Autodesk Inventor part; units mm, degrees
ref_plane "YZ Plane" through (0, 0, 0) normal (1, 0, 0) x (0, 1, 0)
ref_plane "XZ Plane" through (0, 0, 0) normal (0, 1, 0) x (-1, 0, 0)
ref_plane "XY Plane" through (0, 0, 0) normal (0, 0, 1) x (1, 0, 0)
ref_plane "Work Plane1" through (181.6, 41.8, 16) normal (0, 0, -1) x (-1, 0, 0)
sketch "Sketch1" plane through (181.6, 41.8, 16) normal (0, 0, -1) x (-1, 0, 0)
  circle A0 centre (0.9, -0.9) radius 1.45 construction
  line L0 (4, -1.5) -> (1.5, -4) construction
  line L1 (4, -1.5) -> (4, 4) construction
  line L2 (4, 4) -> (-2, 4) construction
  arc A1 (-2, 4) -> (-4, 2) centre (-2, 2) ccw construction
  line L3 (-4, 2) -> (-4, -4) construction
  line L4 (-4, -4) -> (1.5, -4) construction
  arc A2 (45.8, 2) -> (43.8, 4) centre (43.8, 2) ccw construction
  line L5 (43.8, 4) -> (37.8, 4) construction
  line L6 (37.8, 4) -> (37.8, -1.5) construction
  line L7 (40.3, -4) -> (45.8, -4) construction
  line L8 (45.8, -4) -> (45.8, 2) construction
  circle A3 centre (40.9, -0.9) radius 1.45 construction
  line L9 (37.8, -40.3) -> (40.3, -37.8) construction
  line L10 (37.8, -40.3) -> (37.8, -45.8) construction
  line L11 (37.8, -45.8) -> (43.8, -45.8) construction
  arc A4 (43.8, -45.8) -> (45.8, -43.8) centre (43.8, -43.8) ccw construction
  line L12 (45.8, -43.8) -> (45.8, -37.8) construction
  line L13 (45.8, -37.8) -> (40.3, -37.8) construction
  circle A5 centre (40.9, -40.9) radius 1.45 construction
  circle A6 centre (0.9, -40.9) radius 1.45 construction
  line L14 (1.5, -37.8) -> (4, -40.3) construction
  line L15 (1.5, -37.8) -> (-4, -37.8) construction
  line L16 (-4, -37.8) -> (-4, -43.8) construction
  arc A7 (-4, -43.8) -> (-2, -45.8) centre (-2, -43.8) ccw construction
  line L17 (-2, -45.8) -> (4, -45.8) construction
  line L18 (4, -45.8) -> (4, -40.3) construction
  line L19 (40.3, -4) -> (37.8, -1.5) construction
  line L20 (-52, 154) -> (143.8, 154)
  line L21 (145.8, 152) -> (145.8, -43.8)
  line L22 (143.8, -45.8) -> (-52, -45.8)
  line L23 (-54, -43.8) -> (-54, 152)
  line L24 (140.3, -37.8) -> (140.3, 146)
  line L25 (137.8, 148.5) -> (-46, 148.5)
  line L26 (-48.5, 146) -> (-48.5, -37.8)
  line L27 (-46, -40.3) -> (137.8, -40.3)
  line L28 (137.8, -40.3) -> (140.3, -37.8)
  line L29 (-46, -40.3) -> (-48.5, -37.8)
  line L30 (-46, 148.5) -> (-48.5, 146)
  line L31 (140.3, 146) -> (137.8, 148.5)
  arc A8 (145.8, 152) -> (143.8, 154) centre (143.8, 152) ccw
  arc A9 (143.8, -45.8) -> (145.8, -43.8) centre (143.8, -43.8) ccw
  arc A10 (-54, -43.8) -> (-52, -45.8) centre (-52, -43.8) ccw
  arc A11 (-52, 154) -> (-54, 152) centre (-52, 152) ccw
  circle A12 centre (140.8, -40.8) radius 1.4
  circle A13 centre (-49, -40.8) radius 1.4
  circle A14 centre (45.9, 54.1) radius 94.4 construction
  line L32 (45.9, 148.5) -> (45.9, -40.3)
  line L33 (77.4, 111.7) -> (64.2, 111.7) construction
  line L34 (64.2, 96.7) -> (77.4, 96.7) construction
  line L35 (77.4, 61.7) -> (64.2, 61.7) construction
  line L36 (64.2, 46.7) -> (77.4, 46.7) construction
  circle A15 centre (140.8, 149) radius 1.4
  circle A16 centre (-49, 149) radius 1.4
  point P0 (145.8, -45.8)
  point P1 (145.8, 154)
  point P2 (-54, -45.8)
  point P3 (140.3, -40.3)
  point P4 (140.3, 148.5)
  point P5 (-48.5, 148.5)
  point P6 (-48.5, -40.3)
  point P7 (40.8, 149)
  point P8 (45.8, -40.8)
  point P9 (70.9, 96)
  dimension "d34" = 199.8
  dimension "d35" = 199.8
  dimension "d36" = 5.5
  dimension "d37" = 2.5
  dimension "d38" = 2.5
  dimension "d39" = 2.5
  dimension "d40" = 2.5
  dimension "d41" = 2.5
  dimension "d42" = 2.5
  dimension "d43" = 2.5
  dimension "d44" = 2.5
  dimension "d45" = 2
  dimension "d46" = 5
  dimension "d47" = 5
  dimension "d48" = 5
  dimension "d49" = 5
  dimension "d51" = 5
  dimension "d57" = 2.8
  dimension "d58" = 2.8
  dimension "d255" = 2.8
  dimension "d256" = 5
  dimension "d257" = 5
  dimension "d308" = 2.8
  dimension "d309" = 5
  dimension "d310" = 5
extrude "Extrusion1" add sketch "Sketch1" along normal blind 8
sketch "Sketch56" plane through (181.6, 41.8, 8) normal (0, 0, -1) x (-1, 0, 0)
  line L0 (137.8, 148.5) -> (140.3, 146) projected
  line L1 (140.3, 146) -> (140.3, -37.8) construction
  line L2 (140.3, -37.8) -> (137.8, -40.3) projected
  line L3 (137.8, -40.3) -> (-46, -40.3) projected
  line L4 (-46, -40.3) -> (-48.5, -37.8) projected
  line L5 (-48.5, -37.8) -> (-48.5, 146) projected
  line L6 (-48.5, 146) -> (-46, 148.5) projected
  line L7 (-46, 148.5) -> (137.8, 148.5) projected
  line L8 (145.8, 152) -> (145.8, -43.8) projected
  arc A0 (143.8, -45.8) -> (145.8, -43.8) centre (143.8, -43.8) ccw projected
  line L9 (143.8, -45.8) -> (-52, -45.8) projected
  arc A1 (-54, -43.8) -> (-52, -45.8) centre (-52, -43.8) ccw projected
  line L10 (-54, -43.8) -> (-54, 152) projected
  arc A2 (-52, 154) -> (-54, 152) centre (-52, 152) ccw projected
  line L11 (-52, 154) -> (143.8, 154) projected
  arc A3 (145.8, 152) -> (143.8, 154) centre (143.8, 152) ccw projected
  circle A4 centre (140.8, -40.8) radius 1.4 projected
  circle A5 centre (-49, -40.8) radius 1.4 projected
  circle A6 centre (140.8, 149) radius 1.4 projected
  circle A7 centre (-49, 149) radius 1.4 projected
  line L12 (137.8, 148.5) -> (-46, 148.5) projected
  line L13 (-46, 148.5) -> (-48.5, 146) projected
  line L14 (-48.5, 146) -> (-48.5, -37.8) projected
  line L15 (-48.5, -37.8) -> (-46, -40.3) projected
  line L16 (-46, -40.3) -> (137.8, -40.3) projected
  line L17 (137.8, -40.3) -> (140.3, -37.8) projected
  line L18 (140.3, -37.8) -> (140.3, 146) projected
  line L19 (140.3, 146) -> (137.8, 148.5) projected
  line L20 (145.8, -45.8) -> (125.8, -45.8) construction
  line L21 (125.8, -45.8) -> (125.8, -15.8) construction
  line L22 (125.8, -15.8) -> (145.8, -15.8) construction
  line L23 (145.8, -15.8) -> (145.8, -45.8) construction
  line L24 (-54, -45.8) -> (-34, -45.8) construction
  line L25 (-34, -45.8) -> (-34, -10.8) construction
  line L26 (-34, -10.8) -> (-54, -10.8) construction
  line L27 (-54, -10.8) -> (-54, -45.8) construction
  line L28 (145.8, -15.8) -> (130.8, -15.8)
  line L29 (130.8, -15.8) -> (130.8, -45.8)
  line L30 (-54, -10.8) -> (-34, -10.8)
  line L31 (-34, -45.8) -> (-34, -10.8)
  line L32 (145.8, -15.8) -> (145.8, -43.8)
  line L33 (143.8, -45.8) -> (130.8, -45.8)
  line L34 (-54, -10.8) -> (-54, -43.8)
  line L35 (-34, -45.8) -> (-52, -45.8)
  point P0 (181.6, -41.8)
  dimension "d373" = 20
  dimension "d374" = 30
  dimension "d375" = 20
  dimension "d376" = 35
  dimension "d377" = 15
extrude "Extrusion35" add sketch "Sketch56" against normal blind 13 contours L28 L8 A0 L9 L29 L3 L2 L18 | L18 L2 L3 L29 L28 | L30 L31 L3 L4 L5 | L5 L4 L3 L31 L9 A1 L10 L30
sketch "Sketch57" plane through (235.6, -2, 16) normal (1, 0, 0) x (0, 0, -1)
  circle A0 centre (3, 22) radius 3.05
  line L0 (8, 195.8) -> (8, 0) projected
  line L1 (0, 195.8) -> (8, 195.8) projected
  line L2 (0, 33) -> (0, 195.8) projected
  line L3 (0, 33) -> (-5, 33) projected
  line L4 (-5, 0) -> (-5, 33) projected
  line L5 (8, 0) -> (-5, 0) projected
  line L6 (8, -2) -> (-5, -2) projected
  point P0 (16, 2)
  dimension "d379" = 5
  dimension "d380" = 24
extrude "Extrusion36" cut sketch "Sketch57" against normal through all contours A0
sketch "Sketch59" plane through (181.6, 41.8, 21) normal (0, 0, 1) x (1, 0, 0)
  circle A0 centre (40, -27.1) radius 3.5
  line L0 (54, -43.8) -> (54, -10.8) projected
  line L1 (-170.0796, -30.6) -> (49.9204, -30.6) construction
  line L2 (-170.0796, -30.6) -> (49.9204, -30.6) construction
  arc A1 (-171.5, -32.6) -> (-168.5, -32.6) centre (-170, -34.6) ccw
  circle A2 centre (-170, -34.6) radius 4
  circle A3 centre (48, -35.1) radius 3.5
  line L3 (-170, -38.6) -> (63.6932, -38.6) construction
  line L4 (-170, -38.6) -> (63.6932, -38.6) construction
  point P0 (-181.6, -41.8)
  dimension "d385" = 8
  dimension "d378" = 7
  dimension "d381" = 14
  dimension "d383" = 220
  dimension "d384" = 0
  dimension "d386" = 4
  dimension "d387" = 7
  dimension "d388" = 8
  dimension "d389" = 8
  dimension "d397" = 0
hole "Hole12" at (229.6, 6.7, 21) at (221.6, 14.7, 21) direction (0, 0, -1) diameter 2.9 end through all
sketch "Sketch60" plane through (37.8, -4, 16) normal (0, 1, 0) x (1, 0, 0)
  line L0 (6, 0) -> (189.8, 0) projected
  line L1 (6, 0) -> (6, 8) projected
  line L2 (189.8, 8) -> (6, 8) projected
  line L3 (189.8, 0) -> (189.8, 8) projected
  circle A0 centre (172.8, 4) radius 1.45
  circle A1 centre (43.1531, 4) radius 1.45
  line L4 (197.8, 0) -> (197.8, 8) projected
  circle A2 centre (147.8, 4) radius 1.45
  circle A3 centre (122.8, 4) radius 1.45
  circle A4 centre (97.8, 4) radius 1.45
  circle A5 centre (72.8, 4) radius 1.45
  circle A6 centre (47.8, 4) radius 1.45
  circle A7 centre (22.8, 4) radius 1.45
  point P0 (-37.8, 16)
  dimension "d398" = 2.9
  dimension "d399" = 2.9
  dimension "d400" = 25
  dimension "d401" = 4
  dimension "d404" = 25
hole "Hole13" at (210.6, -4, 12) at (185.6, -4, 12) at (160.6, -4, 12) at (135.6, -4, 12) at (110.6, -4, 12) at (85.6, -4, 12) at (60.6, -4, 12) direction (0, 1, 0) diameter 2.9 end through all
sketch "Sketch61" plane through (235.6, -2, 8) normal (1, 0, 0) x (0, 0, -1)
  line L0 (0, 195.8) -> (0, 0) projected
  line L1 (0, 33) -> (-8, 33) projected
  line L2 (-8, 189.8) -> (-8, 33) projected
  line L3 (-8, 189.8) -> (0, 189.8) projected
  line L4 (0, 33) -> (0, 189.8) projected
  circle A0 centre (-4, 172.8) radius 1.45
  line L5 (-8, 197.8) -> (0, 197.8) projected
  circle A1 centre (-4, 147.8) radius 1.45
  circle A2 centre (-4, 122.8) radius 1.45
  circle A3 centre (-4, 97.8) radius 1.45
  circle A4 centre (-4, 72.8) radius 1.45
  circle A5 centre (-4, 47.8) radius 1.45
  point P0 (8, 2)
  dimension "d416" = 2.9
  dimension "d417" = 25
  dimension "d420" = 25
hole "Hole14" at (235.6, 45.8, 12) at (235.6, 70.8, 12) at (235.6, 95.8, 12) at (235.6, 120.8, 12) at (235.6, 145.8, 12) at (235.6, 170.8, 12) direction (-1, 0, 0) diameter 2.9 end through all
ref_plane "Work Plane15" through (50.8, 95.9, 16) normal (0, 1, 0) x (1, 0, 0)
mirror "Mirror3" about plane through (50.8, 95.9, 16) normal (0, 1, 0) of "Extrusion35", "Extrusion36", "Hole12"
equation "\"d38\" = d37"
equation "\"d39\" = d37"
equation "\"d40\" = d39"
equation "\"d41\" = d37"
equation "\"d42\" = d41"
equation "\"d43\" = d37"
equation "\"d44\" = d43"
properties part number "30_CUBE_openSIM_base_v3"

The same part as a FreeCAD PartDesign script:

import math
import FreeCAD as App
import Part
import Sketcher
from FreeCAD import Vector
Q = App.Units.Quantity

doc = App.newDocument("Part")
body = doc.addObject("PartDesign::Body", "Body")

# Sketch on XY plane
sketch1 = body.newObject("Sketcher::SketchObject", "Sketch")
sketch1.AttachmentSupport = (doc.getObject("XY_Plane"), [""])
sketch1.MapMode = "FlatFace"
sketch1.AttachmentOffset = App.Placement(Vector(0, 0, 16), App.Rotation())
sketch1.addGeometry([
    Part.LineSegment(Vector(37.8, 195.8, 0), Vector(233.6, 195.8, 0)),  # 0
    Part.ArcOfCircle(Part.Circle(Vector(233.6, 193.8, 0), Vector(0, 0, 1), 2), math.radians(0), math.radians(90)),  # 1
    Part.LineSegment(Vector(235.6, 193.8, 0), Vector(235.6, -2, 0)),  # 2
    Part.ArcOfCircle(Part.Circle(Vector(233.6, -2, 0), Vector(0, 0, 1), 2), math.radians(-90), math.radians(0)),  # 3
    Part.LineSegment(Vector(233.6, -4, 0), Vector(37.8, -4, 0)),  # 4
    Part.ArcOfCircle(Part.Circle(Vector(37.8, -2, 0), Vector(0, 0, 1), 2), math.radians(180), math.radians(270)),  # 5
    Part.LineSegment(Vector(35.8, -2, 0), Vector(35.8, 193.8, 0)),  # 6
    Part.ArcOfCircle(Part.Circle(Vector(37.8, 193.8, 0), Vector(0, 0, 1), 2), math.radians(90), math.radians(180)),  # 7
    Part.Circle(Vector(230.6, 1, 0), Vector(0, 0, 1), 1.4),  # 8
    Part.Circle(Vector(40.8, 1, 0), Vector(0, 0, 1), 1.4),  # 9
    Part.Circle(Vector(230.6, 190.8, 0), Vector(0, 0, 1), 1.4),  # 10
    Part.LineSegment(Vector(41.3, 187.8, 0), Vector(41.3, 4, 0)),  # 11
    Part.LineSegment(Vector(41.3, 4, 0), Vector(43.8, 1.5, 0)),  # 12
    Part.LineSegment(Vector(43.8, 1.5, 0), Vector(227.6, 1.5, 0)),  # 13
    Part.LineSegment(Vector(227.6, 1.5, 0), Vector(230.1, 4, 0)),  # 14
    Part.LineSegment(Vector(230.1, 4, 0), Vector(230.1, 187.8, 0)),  # 15
    Part.LineSegment(Vector(230.1, 187.8, 0), Vector(227.6, 190.3, 0)),  # 16
    Part.LineSegment(Vector(227.6, 190.3, 0), Vector(43.8, 190.3, 0)),  # 17
    Part.LineSegment(Vector(43.8, 190.3, 0), Vector(41.3, 187.8, 0)),  # 18
    Part.Circle(Vector(40.8, 190.8, 0), Vector(0, 0, 1), 1.4),  # 19
], False)
sketch1.addConstraint([
    Sketcher.Constraint("Tangent", 0, 2, 1, 2),
    Sketcher.Constraint("Tangent", 1, 1, 2, 1),
    Sketcher.Constraint("Tangent", 2, 2, 3, 2),
    Sketcher.Constraint("Tangent", 3, 1, 4, 1),
    Sketcher.Constraint("Tangent", 4, 2, 5, 2),
    Sketcher.Constraint("Tangent", 5, 1, 6, 1),
    Sketcher.Constraint("Tangent", 6, 2, 7, 2),
    Sketcher.Constraint("Tangent", 7, 1, 0, 1),
    Sketcher.Constraint("Coincident", 11, 2, 12, 1),
    Sketcher.Constraint("Coincident", 12, 2, 13, 1),
    Sketcher.Constraint("Coincident", 13, 2, 14, 1),
    Sketcher.Constraint("Coincident", 14, 2, 15, 1),
    Sketcher.Constraint("Coincident", 15, 2, 16, 1),
    Sketcher.Constraint("Coincident", 16, 2, 17, 1),
    Sketcher.Constraint("Coincident", 17, 2, 18, 1),
    Sketcher.Constraint("Coincident", 18, 2, 11, 1),
    Sketcher.Constraint("Horizontal", 0),
    Sketcher.Constraint("Vertical", 2),
    Sketcher.Constraint("Horizontal", 4),
    Sketcher.Constraint("Vertical", 6),
    Sketcher.Constraint("Vertical", 11),
    Sketcher.Constraint("Horizontal", 13),
    Sketcher.Constraint("Vertical", 15),
    Sketcher.Constraint("Horizontal", 17),
    Sketcher.Constraint("Equal", 1, 3),
    Sketcher.Constraint("Equal", 3, 5),
    Sketcher.Constraint("Equal", 5, 7),
    Sketcher.Constraint("Equal", 8, 9),
    Sketcher.Constraint("Equal", 9, 10),
    Sketcher.Constraint("Equal", 10, 19),
    Sketcher.Constraint("Perpendicular", 12, 14),
    Sketcher.Constraint("Perpendicular", 14, 16),
    Sketcher.Constraint("Perpendicular", 16, 18),
    Sketcher.Constraint("Horizontal", 8, 3, 9, 3),
    Sketcher.Constraint("Horizontal", 10, 3, 19, 3),
    Sketcher.Constraint("Horizontal", 11, 2, 14, 2),
    Sketcher.Constraint("Horizontal", 15, 2, 18, 2),
    Sketcher.Constraint("Vertical", 8, 3, 10, 3),
    Sketcher.Constraint("Vertical", 9, 3, 19, 3),
    Sketcher.Constraint("Vertical", 13, 2, 16, 2),
    Sketcher.Constraint("Vertical", 12, 2, 17, 2),
    Sketcher.Constraint("Equal", 4, 2),
    Sketcher.Constraint("Equal", 17, 11),
    Sketcher.Constraint("Radius", 1, Q("2 mm")),
    Sketcher.Constraint("Diameter", 8, Q("2.8 mm")),
    Sketcher.Constraint("DistanceY", 3, 3, -1, 1, Q("2 mm")),
    Sketcher.Constraint("DistanceY", 10, 3, 0, 2, Q("5 mm")),
    Sketcher.Constraint("DistanceX", 10, 3, 1, 1, Q("5 mm")),
    Sketcher.Constraint("DistanceY", 3, 1, 8, 3, Q("5 mm")),
    Sketcher.Constraint("DistanceX", 5, 1, 9, 3, Q("5 mm")),
    Sketcher.Constraint("DistanceX", 5, 1, 11, 2, Q("5.5 mm")),
    Sketcher.Constraint("DistanceX", 11, 2, 12, 2, Q("2.5 mm")),
    Sketcher.Constraint("DistanceY", 4, 2, 12, 2, Q("5.5 mm")),
    Sketcher.Constraint("DistanceX", 14, 2, 2, 2, Q("5.5 mm")),
    Sketcher.Constraint("DistanceX", 0, 1, 0, 2, Q("195.8 mm")),
    Sketcher.Constraint("DistanceX", -1, 1, 1, 3, Q("233.6 mm")),
])
pad1 = body.newObject("PartDesign::Pad", "Pad")
pad1.Profile = sketch1
pad1.Length = 8
pad1.Reversed = True

# Sketch on XY plane
sketch2 = body.newObject("Sketcher::SketchObject", "Sketch001")
sketch2.AttachmentSupport = (doc.getObject("XY_Plane"), [""])
sketch2.MapMode = "FlatFace"
sketch2.AttachmentOffset = App.Placement(Vector(0, 0, 8), App.Rotation())
sketch2.addGeometry([
    Part.LineSegment(Vector(35.8, 26, 0), Vector(50.8, 26, 0)),  # 0
    Part.LineSegment(Vector(50.8, 26, 0), Vector(50.8, -4, 0)),  # 1
    Part.LineSegment(Vector(50.8, -4, 0), Vector(37.8, -4, 0)),  # 2
    Part.ArcOfCircle(Part.Circle(Vector(37.8, -2, 0), Vector(0, 0, 1), 2), math.radians(180), math.radians(270)),  # 3
    Part.LineSegment(Vector(35.8, -2, 0), Vector(35.8, 26, 0)),  # 4
    Part.Circle(Vector(40.8, 1, 0), Vector(0, 0, 1), 1.4),  # 5
    Part.LineSegment(Vector(215.6, 31, 0), Vector(235.6, 31, 0)),  # 6
    Part.LineSegment(Vector(235.6, 31, 0), Vector(235.6, -2, 0)),  # 7
    Part.ArcOfCircle(Part.Circle(Vector(233.6, -2, 0), Vector(0, 0, 1), 2), math.radians(-90), math.radians(0)),  # 8
    Part.LineSegment(Vector(233.6, -4, 0), Vector(215.6, -4, 0)),  # 9
    Part.LineSegment(Vector(215.6, -4, 0), Vector(215.6, 31, 0)),  # 10
    Part.Circle(Vector(230.6, 1, 0), Vector(0, 0, 1), 1.4),  # 11
], False)
sketch2.addConstraint([
    Sketcher.Constraint("Coincident", 0, 2, 1, 1),
    Sketcher.Constraint("Coincident", 1, 2, 2, 1),
    Sketcher.Constraint("Tangent", 2, 2, 3, 2),
    Sketcher.Constraint("Tangent", 3, 1, 4, 1),
    Sketcher.Constraint("Coincident", 4, 2, 0, 1),
    Sketcher.Constraint("Coincident", 6, 2, 7, 1),
    Sketcher.Constraint("Tangent", 7, 2, 8, 2),
    Sketcher.Constraint("Tangent", 8, 1, 9, 1),
    Sketcher.Constraint("Coincident", 9, 2, 10, 1),
    Sketcher.Constraint("Coincident", 10, 2, 6, 1),
    Sketcher.Constraint("Horizontal", 0),
    Sketcher.Constraint("Vertical", 1),
    Sketcher.Constraint("Horizontal", 2),
    Sketcher.Constraint("Vertical", 4),
    Sketcher.Constraint("Horizontal", 6),
    Sketcher.Constraint("Vertical", 7),
    Sketcher.Constraint("Horizontal", 9),
    Sketcher.Constraint("Vertical", 10),
    Sketcher.Constraint("Equal", 3, 8),
    Sketcher.Constraint("Equal", 5, 11),
    Sketcher.Constraint("Horizontal", 3, 3, 8, 3),
    Sketcher.Constraint("Horizontal", 5, 3, 11, 3),
    Sketcher.Constraint("DistanceX", 0, 1, 0, 2, Q("15 mm")),
    Sketcher.Constraint("DistanceX", 6, 1, 6, 2, Q("20 mm")),
    Sketcher.Constraint("DistanceY", 1, 2, 1, 1, Q("30 mm")),
    Sketcher.Constraint("DistanceY", 10, 1, 10, 2, Q("35 mm")),
    Sketcher.Constraint("Radius", 3, Q("2 mm")),
    Sketcher.Constraint("DistanceY", 11, 3, 6, 2, Q("30 mm")),
    Sketcher.Constraint("DistanceX", 9, 2, 11, 3, Q("15 mm")),
    Sketcher.Constraint("Diameter", 5, Q("2.8 mm")),
    Sketcher.Constraint("DistanceY", 3, 3, -1, 1, Q("2 mm")),
    Sketcher.Constraint("DistanceX", 3, 3, 5, 3, Q("3 mm")),
    Sketcher.Constraint("DistanceX", -1, 1, 3, 3, Q("37.8 mm")),
    Sketcher.Constraint("DistanceX", -1, 1, 8, 3, Q("233.6 mm")),
])
pad2 = body.newObject("PartDesign::Pad", "Pad001")
pad2.Profile = sketch2
pad2.Length = 13

# Sketch on YZ plane
sketch3 = body.newObject("Sketcher::SketchObject", "Sketch002")
sketch3.AttachmentSupport = (doc.getObject("YZ_Plane"), [""])
sketch3.MapMode = "FlatFace"
sketch3.AttachmentOffset = App.Placement(Vector(0, 0, 235.6), App.Rotation())
sketch3.addGeometry(Part.Circle(Vector(20, 13, 0), Vector(0, 0, 1), 3.05), False)
sketch3.addConstraint([
    Sketcher.Constraint("Diameter", 0, Q("6.1 mm")),
    Sketcher.Constraint("DistanceX", -1, 1, 0, 3, Q("20 mm")),
    Sketcher.Constraint("DistanceY", -1, 1, 0, 3, Q("13 mm")),
])
pocket1 = body.newObject("PartDesign::Pocket", "Pocket")
pocket1.Profile = sketch3
pocket1.Type = "ThroughAll"

# Sketch on XY plane
sketch4 = body.newObject("Sketcher::SketchObject", "Sketch003")
sketch4.AttachmentSupport = (doc.getObject("XY_Plane"), [""])
sketch4.MapMode = "FlatFace"
sketch4.AttachmentOffset = App.Placement(Vector(0, 0, 21), App.Rotation())
sketch4.addGeometry([
    Part.Circle(Vector(229.6, 6.7, 0), Vector(0, 0, 1), 1.45),
    Part.Circle(Vector(221.6, 14.7, 0), Vector(0, 0, 1), 1.45),
], False)
sketch4.addConstraint([
    Sketcher.Constraint("Equal", 0, 1),
    Sketcher.Constraint("Diameter", 0, Q("2.9 mm")),
    Sketcher.Constraint("DistanceX", 1, 3, 0, 3, Q("8 mm")),
    Sketcher.Constraint("DistanceY", 0, 3, 1, 3, Q("8 mm")),
    Sketcher.Constraint("DistanceX", -1, 1, 0, 3, Q("229.6 mm")),
    Sketcher.Constraint("DistanceY", -1, 1, 0, 3, Q("6.7 mm")),
])
doc.recompute()
hole = body.newObject("PartDesign::Hole", "Hole")
hole.Profile = sketch4
hole.ThreadType = "None"
hole.Diameter = 2.9
hole.DepthType = "ThroughAll"

# Sketch on XZ plane
sketch5 = body.newObject("Sketcher::SketchObject", "Sketch004")
sketch5.AttachmentSupport = (doc.getObject("XZ_Plane"), [""])
sketch5.MapMode = "FlatFace"
sketch5.AttachmentOffset = App.Placement(Vector(0, 0, 4), App.Rotation())
sketch5.addGeometry([
    Part.Circle(Vector(210.6, 12, 0), Vector(0, 0, 1), 1.45),  # 0
    Part.Circle(Vector(185.6, 12, 0), Vector(0, 0, 1), 1.45),  # 1
    Part.Circle(Vector(160.6, 12, 0), Vector(0, 0, 1), 1.45),  # 2
    Part.Circle(Vector(135.6, 12, 0), Vector(0, 0, 1), 1.45),  # 3
    Part.Circle(Vector(110.6, 12, 0), Vector(0, 0, 1), 1.45),  # 4
    Part.Circle(Vector(85.6, 12, 0), Vector(0, 0, 1), 1.45),  # 5
    Part.Circle(Vector(60.6, 12, 0), Vector(0, 0, 1), 1.45),  # 6
], False)
sketch5.addConstraint([
    Sketcher.Constraint("Equal", 0, 1),
    Sketcher.Constraint("Equal", 1, 2),
    Sketcher.Constraint("Equal", 2, 3),
    Sketcher.Constraint("Equal", 3, 4),
    Sketcher.Constraint("Equal", 4, 5),
    Sketcher.Constraint("Equal", 5, 6),
    Sketcher.Constraint("Horizontal", 0, 3, 1, 3),
    Sketcher.Constraint("Horizontal", 1, 3, 2, 3),
    Sketcher.Constraint("Horizontal", 2, 3, 3, 3),
    Sketcher.Constraint("Horizontal", 3, 3, 4, 3),
    Sketcher.Constraint("Horizontal", 4, 3, 5, 3),
    Sketcher.Constraint("Horizontal", 5, 3, 6, 3),
    Sketcher.Constraint("Diameter", 0, Q("2.9 mm")),
    Sketcher.Constraint("DistanceY", -1, 1, 0, 3, Q("12 mm")),
    Sketcher.Constraint("DistanceX", 1, 3, 0, 3, Q("25 mm")),
    Sketcher.Constraint("DistanceX", 2, 3, 1, 3, Q("25 mm")),
    Sketcher.Constraint("DistanceX", 3, 3, 2, 3, Q("25 mm")),
    Sketcher.Constraint("DistanceX", 4, 3, 3, 3, Q("25 mm")),
    Sketcher.Constraint("DistanceX", 5, 3, 4, 3, Q("25 mm")),
    Sketcher.Constraint("DistanceX", 6, 3, 5, 3, Q("25 mm")),
    Sketcher.Constraint("DistanceX", -1, 1, 0, 3, Q("210.6 mm")),
])
doc.recompute()
hole2 = body.newObject("PartDesign::Hole", "Hole001")
hole2.Profile = sketch5
hole2.ThreadType = "None"
hole2.Diameter = 2.9
hole2.DepthType = "ThroughAll"

# Sketch on YZ plane
sketch6 = body.newObject("Sketcher::SketchObject", "Sketch005")
sketch6.AttachmentSupport = (doc.getObject("YZ_Plane"), [""])
sketch6.MapMode = "FlatFace"
sketch6.AttachmentOffset = App.Placement(Vector(0, 0, 235.6), App.Rotation())
sketch6.addGeometry([
    Part.Circle(Vector(45.8, 12, 0), Vector(0, 0, 1), 1.45),  # 0
    Part.Circle(Vector(70.8, 12, 0), Vector(0, 0, 1), 1.45),  # 1
    Part.Circle(Vector(95.8, 12, 0), Vector(0, 0, 1), 1.45),  # 2
    Part.Circle(Vector(120.8, 12, 0), Vector(0, 0, 1), 1.45),  # 3
    Part.Circle(Vector(145.8, 12, 0), Vector(0, 0, 1), 1.45),  # 4
    Part.Circle(Vector(170.8, 12, 0), Vector(0, 0, 1), 1.45),  # 5
], False)
sketch6.addConstraint([
    Sketcher.Constraint("Equal", 0, 1),
    Sketcher.Constraint("Equal", 1, 2),
    Sketcher.Constraint("Equal", 2, 3),
    Sketcher.Constraint("Equal", 3, 4),
    Sketcher.Constraint("Equal", 4, 5),
    Sketcher.Constraint("Horizontal", 0, 3, 1, 3),
    Sketcher.Constraint("Horizontal", 1, 3, 2, 3),
    Sketcher.Constraint("Horizontal", 2, 3, 3, 3),
    Sketcher.Constraint("Horizontal", 3, 3, 4, 3),
    Sketcher.Constraint("Horizontal", 4, 3, 5, 3),
    Sketcher.Constraint("Diameter", 0, Q("2.9 mm")),
    Sketcher.Constraint("DistanceY", -1, 1, 0, 3, Q("12 mm")),
    Sketcher.Constraint("DistanceX", 0, 3, 1, 3, Q("25 mm")),
    Sketcher.Constraint("DistanceX", 1, 3, 2, 3, Q("25 mm")),
    Sketcher.Constraint("DistanceX", 2, 3, 3, 3, Q("25 mm")),
    Sketcher.Constraint("DistanceX", 3, 3, 4, 3, Q("25 mm")),
    Sketcher.Constraint("DistanceX", 4, 3, 5, 3, Q("25 mm")),
    Sketcher.Constraint("DistanceX", -1, 1, 0, 3, Q("45.8 mm")),
])
doc.recompute()
hole3 = body.newObject("PartDesign::Hole", "Hole002")
hole3.Profile = sketch6
hole3.ThreadType = "None"
hole3.Diameter = 2.9
hole3.DepthType = "ThroughAll"
doc.recompute()

datumplane = body.newObject("PartDesign::Plane", "DatumPlane")
datumplane.AttachmentSupport = (doc.getObject("XZ_Plane"), [""])
datumplane.MapMode = "FlatFace"
datumplane.AttachmentOffset = App.Placement(Vector(0, 0, -95.9), App.Rotation())
mirrored = body.newObject("PartDesign::Mirrored", "Mirrored")
mirrored.Originals = [pad2, pocket1, hole]
mirrored.MirrorPlane = (datumplane, [""])
body.Tip = mirrored

doc.recompute()
